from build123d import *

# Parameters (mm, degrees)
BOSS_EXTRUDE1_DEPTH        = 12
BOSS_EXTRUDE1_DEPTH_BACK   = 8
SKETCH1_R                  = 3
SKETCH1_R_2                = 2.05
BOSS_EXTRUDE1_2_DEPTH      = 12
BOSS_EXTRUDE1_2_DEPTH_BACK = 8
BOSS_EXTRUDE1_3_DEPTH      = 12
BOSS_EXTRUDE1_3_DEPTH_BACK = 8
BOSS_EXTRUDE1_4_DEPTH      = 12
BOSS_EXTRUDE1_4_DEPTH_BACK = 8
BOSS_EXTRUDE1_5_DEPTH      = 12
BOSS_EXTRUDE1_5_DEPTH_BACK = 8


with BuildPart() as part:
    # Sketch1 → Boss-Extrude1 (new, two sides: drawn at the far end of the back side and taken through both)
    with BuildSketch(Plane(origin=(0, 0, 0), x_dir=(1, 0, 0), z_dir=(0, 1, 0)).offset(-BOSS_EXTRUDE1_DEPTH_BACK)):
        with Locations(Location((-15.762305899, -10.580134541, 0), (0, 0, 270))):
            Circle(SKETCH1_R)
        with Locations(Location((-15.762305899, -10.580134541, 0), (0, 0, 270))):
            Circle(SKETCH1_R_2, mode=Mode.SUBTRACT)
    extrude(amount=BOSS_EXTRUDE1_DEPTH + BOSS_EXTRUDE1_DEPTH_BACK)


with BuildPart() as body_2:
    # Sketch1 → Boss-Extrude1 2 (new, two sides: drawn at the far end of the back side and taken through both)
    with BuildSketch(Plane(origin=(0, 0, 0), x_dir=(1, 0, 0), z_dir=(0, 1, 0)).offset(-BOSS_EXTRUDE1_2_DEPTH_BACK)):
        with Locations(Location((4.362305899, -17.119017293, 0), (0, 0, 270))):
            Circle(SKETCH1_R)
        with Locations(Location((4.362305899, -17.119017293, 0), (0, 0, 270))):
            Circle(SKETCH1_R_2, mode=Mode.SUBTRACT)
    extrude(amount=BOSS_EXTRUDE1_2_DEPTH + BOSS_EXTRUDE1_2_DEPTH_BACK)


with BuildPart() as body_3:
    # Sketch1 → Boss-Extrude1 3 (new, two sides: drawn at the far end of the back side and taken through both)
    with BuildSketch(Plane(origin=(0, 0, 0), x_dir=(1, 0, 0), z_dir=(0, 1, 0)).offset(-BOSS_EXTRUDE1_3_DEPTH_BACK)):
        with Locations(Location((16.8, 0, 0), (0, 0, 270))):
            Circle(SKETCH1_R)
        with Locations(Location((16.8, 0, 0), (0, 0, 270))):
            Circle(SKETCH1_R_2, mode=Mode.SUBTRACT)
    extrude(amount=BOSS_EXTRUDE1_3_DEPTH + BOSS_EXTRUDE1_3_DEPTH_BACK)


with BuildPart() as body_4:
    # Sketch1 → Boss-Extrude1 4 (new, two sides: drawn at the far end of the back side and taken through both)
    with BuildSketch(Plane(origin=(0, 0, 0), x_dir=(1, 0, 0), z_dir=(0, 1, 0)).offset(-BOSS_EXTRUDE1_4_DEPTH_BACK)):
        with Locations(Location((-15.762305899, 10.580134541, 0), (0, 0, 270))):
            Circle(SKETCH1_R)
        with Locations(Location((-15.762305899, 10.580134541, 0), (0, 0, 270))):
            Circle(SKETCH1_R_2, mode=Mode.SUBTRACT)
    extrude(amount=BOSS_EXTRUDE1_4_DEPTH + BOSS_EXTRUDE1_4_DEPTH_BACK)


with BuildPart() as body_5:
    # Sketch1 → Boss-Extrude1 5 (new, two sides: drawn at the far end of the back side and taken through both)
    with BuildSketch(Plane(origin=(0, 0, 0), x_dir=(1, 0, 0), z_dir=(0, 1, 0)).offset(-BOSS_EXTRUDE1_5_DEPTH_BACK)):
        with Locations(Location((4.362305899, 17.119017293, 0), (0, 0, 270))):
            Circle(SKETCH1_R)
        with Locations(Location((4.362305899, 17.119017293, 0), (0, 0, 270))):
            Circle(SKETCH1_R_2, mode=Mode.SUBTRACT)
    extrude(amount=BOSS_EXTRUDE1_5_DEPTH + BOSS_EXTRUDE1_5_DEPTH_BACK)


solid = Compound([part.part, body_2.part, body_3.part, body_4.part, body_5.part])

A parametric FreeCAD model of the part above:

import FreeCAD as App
import Part
import Sketcher

V = App.Vector
Q = App.Units.Quantity

doc = App.newDocument("Part")
body = doc.addObject("PartDesign::Body", "Body")

sketch1 = body.newObject("Sketcher::SketchObject", "Sketch")
sketch1.AttachmentSupport = (doc.getObject("XZ_Plane"), [""])
sketch1.MapMode = "FlatFace"
sketch1.addGeometry([
    Part.Circle(V(-15.762306, 10.580135, 0), V(0, 0, 1), 3),
    Part.Circle(V(-15.762306, 10.580135, 0), V(0, 0, 1), 2.05),
], False)
sketch1.addConstraint([
    Sketcher.Constraint("Coincident", 1, 3, 0, 3),
    Sketcher.Constraint("Diameter", 0, Q("6 mm")),
    Sketcher.Constraint("Diameter", 1, Q("4.1 mm")),
    Sketcher.Constraint("DistanceX", 0, 3, -1, 1, Q("15.762306 mm")),
    Sketcher.Constraint("DistanceY", -1, 1, 0, 3, Q("10.580135 mm")),
])
pad1 = body.newObject("PartDesign::Pad", "Pad")
pad1.Profile = sketch1
pad1.Type = "TwoLengths"
pad1.Length = 12
pad1.Length2 = 8
pad1.Reversed = True
body2 = doc.addObject("PartDesign::Body", "Body001")

sketch2 = body2.newObject("Sketcher::SketchObject", "Sketch001")
sketch2.AttachmentSupport = (doc.getObject("XZ_Plane001"), [""])
sketch2.MapMode = "FlatFace"
sketch2.addGeometry([
    Part.Circle(V(4.362306, 17.119017, 0), V(0, 0, 1), 3),
    Part.Circle(V(4.362306, 17.119017, 0), V(0, 0, 1), 2.05),
], False)
sketch2.addConstraint([
    Sketcher.Constraint("Coincident", 1, 3, 0, 3),
    Sketcher.Constraint("Diameter", 0, Q("6 mm")),
    Sketcher.Constraint("Diameter", 1, Q("4.1 mm")),
    Sketcher.Constraint("DistanceX", -1, 1, 0, 3, Q("4.362306 mm")),
    Sketcher.Constraint("DistanceY", -1, 1, 0, 3, Q("17.119017 mm")),
])
pad2 = body2.newObject("PartDesign::Pad", "Pad001")
pad2.Profile = sketch2
pad2.Type = "TwoLengths"
pad2.Length = 12
pad2.Length2 = 8
pad2.Reversed = True
body3 = doc.addObject("PartDesign::Body", "Body002")

sketch3 = body3.newObject("Sketcher::SketchObject", "Sketch002")
sketch3.AttachmentSupport = (doc.getObject("XZ_Plane002"), [""])
sketch3.MapMode = "FlatFace"
sketch3.addGeometry([
    Part.Circle(V(16.8, 0, 0), V(0, 0, 1), 3),
    Part.Circle(V(16.8, 0, 0), V(0, 0, 1), 2.05),
], False)
sketch3.addConstraint([
    Sketcher.Constraint("Coincident", 1, 3, 0, 3),
    Sketcher.Constraint("PointOnObject", 0, 3, -1),
    Sketcher.Constraint("Diameter", 0, Q("6 mm")),
    Sketcher.Constraint("Diameter", 1, Q("4.1 mm")),
    Sketcher.Constraint("DistanceX", -1, 1, 0, 3, Q("16.8 mm")),
])
pad3 = body3.newObject("PartDesign::Pad", "Pad002")
pad3.Profile = sketch3
pad3.Type = "TwoLengths"
pad3.Length = 12
pad3.Length2 = 8
pad3.Reversed = True
body4 = doc.addObject("PartDesign::Body", "Body003")

sketch4 = body4.newObject("Sketcher::SketchObject", "Sketch003")
sketch4.AttachmentSupport = (doc.getObject("XZ_Plane003"), [""])
sketch4.MapMode = "FlatFace"
sketch4.addGeometry([
    Part.Circle(V(-15.762306, -10.580135, 0), V(0, 0, 1), 3),
    Part.Circle(V(-15.762306, -10.580135, 0), V(0, 0, 1), 2.05),
], False)
sketch4.addConstraint([
    Sketcher.Constraint("Coincident", 1, 3, 0, 3),
    Sketcher.Constraint("Diameter", 0, Q("6 mm")),
    Sketcher.Constraint("Diameter", 1, Q("4.1 mm")),
    Sketcher.Constraint("DistanceX", 0, 3, -1, 1, Q("15.762306 mm")),
    Sketcher.Constraint("DistanceY", 0, 3, -1, 1, Q("10.580135 mm")),
])
pad4 = body4.newObject("PartDesign::Pad", "Pad003")
pad4.Profile = sketch4
pad4.Type = "TwoLengths"
pad4.Length = 12
pad4.Length2 = 8
pad4.Reversed = True
body5 = doc.addObject("PartDesign::Body", "Body004")

sketch5 = body5.newObject("Sketcher::SketchObject", "Sketch004")
sketch5.AttachmentSupport = (doc.getObject("XZ_Plane004"), [""])
sketch5.MapMode = "FlatFace"
sketch5.addGeometry([
    Part.Circle(V(4.362306, -17.119017, 0), V(0, 0, 1), 3),
    Part.Circle(V(4.362306, -17.119017, 0), V(0, 0, 1), 2.05),
], False)
sketch5.addConstraint([
    Sketcher.Constraint("Coincident", 1, 3, 0, 3),
    Sketcher.Constraint("Diameter", 0, Q("6 mm")),
    Sketcher.Constraint("Diameter", 1, Q("4.1 mm")),
    Sketcher.Constraint("DistanceX", -1, 1, 0, 3, Q("4.362306 mm")),
    Sketcher.Constraint("DistanceY", 0, 3, -1, 1, Q("17.119017 mm")),
])
pad5 = body5.newObject("PartDesign::Pad", "Pad004")
pad5.Profile = sketch5
pad5.Type = "TwoLengths"
pad5.Length = 12
pad5.Length2 = 8
pad5.Reversed = True

doc.recompute()
